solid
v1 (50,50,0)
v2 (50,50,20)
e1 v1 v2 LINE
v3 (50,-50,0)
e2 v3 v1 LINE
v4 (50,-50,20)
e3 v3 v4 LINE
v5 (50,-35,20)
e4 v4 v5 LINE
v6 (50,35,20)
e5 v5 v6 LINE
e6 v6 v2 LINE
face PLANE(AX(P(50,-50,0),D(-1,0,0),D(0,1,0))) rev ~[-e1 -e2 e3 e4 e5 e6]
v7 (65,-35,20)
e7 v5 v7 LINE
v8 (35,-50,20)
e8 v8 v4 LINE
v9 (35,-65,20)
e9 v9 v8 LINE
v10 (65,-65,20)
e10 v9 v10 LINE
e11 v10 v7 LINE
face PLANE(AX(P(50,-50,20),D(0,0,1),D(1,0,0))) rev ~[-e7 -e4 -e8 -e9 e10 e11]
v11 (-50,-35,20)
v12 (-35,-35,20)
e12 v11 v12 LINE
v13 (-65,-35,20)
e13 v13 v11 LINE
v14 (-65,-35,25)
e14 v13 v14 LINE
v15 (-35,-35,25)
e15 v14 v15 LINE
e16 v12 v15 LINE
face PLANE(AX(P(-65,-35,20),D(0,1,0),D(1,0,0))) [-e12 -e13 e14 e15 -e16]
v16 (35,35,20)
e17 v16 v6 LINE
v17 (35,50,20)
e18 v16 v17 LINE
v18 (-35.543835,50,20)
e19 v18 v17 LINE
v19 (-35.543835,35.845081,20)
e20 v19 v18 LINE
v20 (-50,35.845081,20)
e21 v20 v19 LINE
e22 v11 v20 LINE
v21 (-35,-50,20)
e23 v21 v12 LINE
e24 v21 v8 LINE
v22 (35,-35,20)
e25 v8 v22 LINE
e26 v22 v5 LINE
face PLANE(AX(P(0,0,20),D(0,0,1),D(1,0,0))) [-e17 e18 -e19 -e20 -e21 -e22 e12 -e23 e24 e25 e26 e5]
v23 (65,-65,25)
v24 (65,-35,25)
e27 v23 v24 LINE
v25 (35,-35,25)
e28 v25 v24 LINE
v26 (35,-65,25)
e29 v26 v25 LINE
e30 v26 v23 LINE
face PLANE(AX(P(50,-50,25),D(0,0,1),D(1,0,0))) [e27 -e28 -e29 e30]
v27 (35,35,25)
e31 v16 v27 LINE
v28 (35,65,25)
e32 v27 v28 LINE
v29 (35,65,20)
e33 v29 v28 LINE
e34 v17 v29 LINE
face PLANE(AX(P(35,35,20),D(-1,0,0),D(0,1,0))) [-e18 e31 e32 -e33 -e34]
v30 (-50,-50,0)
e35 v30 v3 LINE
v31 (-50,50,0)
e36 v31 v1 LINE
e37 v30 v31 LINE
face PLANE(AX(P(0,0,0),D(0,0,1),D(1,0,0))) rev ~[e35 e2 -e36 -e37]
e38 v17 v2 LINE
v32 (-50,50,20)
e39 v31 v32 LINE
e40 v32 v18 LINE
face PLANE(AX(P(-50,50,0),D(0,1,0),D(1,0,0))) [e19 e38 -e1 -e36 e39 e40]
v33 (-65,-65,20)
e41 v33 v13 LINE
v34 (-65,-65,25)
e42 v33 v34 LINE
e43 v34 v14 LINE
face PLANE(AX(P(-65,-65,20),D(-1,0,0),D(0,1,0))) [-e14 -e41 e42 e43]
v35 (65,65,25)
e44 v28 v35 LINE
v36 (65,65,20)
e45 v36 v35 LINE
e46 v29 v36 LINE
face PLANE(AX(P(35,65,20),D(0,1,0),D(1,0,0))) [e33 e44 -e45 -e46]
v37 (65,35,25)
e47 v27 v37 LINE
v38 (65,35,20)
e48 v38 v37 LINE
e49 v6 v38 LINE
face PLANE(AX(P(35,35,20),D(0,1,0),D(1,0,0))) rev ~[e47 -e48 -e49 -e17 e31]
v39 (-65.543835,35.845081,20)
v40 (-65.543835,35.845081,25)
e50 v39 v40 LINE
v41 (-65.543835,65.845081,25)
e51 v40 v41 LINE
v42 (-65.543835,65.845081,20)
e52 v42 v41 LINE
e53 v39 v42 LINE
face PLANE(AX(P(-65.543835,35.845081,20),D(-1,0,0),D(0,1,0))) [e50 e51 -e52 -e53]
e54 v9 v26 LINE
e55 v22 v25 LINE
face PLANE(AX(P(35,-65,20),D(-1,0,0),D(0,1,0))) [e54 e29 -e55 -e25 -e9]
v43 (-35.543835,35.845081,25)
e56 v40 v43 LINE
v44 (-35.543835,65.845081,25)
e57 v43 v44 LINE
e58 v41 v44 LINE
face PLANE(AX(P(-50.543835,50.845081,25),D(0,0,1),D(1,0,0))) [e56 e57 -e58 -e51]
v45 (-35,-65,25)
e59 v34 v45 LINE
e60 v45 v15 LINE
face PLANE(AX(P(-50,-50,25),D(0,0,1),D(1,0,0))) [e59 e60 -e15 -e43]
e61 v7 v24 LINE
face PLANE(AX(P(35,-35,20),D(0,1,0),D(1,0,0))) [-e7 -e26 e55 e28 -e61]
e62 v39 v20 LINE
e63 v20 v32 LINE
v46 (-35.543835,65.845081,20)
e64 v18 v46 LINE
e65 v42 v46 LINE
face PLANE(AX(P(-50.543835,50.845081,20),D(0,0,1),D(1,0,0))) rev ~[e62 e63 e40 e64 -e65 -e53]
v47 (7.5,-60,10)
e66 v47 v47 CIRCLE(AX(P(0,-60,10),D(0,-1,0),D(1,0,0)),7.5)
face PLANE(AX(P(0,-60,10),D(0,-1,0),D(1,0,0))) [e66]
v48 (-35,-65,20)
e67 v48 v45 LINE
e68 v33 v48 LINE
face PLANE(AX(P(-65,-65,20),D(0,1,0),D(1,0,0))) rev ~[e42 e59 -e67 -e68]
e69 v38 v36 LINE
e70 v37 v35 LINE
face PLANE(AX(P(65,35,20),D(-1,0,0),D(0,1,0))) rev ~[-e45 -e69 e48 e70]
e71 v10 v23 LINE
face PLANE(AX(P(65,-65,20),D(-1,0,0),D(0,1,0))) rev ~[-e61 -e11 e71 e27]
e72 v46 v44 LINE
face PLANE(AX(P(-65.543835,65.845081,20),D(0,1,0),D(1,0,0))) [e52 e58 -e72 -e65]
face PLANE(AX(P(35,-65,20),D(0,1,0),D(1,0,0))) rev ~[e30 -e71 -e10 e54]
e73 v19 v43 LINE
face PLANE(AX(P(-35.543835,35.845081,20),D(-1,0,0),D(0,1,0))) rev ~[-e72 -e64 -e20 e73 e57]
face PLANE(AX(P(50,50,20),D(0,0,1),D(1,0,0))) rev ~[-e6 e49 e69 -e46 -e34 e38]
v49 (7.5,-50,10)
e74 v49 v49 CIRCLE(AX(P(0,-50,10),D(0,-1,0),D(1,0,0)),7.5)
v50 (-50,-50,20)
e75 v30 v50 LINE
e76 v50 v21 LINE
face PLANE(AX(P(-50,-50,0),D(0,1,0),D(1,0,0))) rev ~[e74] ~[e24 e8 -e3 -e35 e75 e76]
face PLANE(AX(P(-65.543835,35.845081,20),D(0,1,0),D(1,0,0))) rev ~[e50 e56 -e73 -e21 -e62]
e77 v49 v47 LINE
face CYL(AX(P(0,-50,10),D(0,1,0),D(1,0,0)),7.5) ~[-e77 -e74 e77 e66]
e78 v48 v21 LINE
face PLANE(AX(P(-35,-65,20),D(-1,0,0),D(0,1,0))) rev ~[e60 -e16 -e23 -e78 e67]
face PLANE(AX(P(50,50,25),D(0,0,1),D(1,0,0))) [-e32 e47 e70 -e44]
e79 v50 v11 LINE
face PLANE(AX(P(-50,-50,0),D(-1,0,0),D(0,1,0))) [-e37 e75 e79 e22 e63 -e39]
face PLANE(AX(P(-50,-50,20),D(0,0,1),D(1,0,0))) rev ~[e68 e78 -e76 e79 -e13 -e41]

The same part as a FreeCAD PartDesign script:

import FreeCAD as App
import Part
import Sketcher

V = App.Vector
Q = App.Units.Quantity


def add_polygon(sketch, points):
    """Adds a closed chain of lines whose ends are joined by coincident constraints."""
    first, n = sketch.GeometryCount, len(points)
    for a, b in zip(points, points[1:] + points[:1]):
        sketch.addGeometry(Part.LineSegment(App.Vector(*a, 0), App.Vector(*b, 0)), False)
    for i in range(n):
        sketch.addConstraint(Sketcher.Constraint("Coincident", first + i, 2, first + (i + 1) % n, 1))

doc = App.newDocument("Part")
body = doc.addObject("PartDesign::Body", "Body")

sketch1 = body.newObject("Sketcher::SketchObject", "Sketch")
sketch1.AttachmentSupport = (doc.getObject("XY_Plane"), [""])
sketch1.MapMode = "FlatFace"
add_polygon(sketch1, [(-50, 50), (-50, -50), (50, -50), (50, 50)])
sketch1.addConstraint(Sketcher.Constraint("Vertical", 0))
sketch1.addConstraint(Sketcher.Constraint("Horizontal", 1))
sketch1.addConstraint(Sketcher.Constraint("Vertical", 2))
sketch1.addConstraint(Sketcher.Constraint("Horizontal", 3))
sketch1.addConstraint(Sketcher.Constraint("Symmetric", 0, 2, 2, 2, -1, 1))
sketch1.addConstraint(Sketcher.Constraint("Equal", 3, 0))
sketch1.addConstraint(Sketcher.Constraint("DistanceX", 1, 1, 1, 2, Q("100 mm")))
pad1 = body.newObject("PartDesign::Pad", "Pad")
pad1.Profile = sketch1
pad1.Length = 20

sketch2 = body.newObject("Sketcher::SketchObject", "Sketch001")
sketch2.AttachmentSupport = (doc.getObject("XY_Plane"), [""])
sketch2.MapMode = "FlatFace"
sketch2.AttachmentOffset = App.Placement(V(0, 0, 20), App.Rotation())
add_polygon(sketch2, [(-66, 66), (-66, 36), (-36, 36), (-36, 66)])
add_polygon(sketch2, [(-65, -35), (-65, -65), (-35, -65), (-35, -35)])
add_polygon(sketch2, [(35, -35), (35, -65), (65, -65), (65, -35)])
add_polygon(sketch2, [(35, 65), (35, 35), (65, 35), (65, 65)])
sketch2.addConstraint(Sketcher.Constraint("Vertical", 0))
sketch2.addConstraint(Sketcher.Constraint("Horizontal", 1))
sketch2.addConstraint(Sketcher.Constraint("Vertical", 2))
sketch2.addConstraint(Sketcher.Constraint("Horizontal", 3))
sketch2.addConstraint(Sketcher.Constraint("Vertical", 4))
sketch2.addConstraint(Sketcher.Constraint("Horizontal", 5))
sketch2.addConstraint(Sketcher.Constraint("Vertical", 6))
sketch2.addConstraint(Sketcher.Constraint("Horizontal", 7))
sketch2.addConstraint(Sketcher.Constraint("Vertical", 8))
sketch2.addConstraint(Sketcher.Constraint("Horizontal", 9))
sketch2.addConstraint(Sketcher.Constraint("Vertical", 10))
sketch2.addConstraint(Sketcher.Constraint("Horizontal", 11))
sketch2.addConstraint(Sketcher.Constraint("Vertical", 12))
sketch2.addConstraint(Sketcher.Constraint("Horizontal", 13))
sketch2.addConstraint(Sketcher.Constraint("Vertical", 14))
sketch2.addConstraint(Sketcher.Constraint("Horizontal", 15))
sketch2.addConstraint(Sketcher.Constraint("Symmetric", 6, 2, 12, 2, -1, 1))
sketch2.addConstraint(Sketcher.Constraint("Symmetric", 4, 2, 14, 2, -1, 1))
sketch2.addConstraint(Sketcher.Constraint("Symmetric", 5, 2, 8, 2, -2))
sketch2.addConstraint(Sketcher.Constraint("Symmetric", 7, 2, 10, 2, -2))
sketch2.addConstraint(Sketcher.Constraint("Equal", 3, 5))
sketch2.addConstraint(Sketcher.Constraint("Equal", 15, 0))
sketch2.addConstraint(Sketcher.Constraint("Equal", 2, 4))
sketch2.addConstraint(Sketcher.Constraint("DistanceX", 1, 1, 1, 2, Q("30 mm")))
sketch2.addConstraint(Sketcher.Constraint("DistanceX", 4, 2, -1, 1, Q("65 mm")))
sketch2.addConstraint(Sketcher.Constraint("DistanceY", 4, 2, -1, 1, Q("65 mm")))
sketch2.addConstraint(Sketcher.Constraint("DistanceY", -1, 1, 0, 2, Q("35.845081 mm")))
sketch2.addConstraint(Sketcher.Constraint("DistanceX", 0, 2, -1, 1, Q("65.543835 mm")))
pad2 = body.newObject("PartDesign::Pad", "Pad001")
pad2.Profile = sketch2
pad2.Length = 5

sketch3 = body.newObject("Sketcher::SketchObject", "Sketch002")
sketch3.AttachmentSupport = (doc.getObject("XZ_Plane"), [""])
sketch3.MapMode = "FlatFace"
sketch3.AttachmentOffset = App.Placement(V(0, 0, 50), App.Rotation())
sketch3.addGeometry(Part.Circle(V(0, 10, 0), V(0, 0, 1), 8), False)
sketch3.addConstraint(Sketcher.Constraint("PointOnObject", 0, 3, -2))
sketch3.addConstraint(Sketcher.Constraint("Diameter", 0, Q("15 mm")))
sketch3.addConstraint(Sketcher.Constraint("DistanceY", -1, 1, 0, 3, Q("10 mm")))
pad3 = body.newObject("PartDesign::Pad", "Pad002")
pad3.Profile = sketch3
pad3.Length = 10

doc.recompute()
